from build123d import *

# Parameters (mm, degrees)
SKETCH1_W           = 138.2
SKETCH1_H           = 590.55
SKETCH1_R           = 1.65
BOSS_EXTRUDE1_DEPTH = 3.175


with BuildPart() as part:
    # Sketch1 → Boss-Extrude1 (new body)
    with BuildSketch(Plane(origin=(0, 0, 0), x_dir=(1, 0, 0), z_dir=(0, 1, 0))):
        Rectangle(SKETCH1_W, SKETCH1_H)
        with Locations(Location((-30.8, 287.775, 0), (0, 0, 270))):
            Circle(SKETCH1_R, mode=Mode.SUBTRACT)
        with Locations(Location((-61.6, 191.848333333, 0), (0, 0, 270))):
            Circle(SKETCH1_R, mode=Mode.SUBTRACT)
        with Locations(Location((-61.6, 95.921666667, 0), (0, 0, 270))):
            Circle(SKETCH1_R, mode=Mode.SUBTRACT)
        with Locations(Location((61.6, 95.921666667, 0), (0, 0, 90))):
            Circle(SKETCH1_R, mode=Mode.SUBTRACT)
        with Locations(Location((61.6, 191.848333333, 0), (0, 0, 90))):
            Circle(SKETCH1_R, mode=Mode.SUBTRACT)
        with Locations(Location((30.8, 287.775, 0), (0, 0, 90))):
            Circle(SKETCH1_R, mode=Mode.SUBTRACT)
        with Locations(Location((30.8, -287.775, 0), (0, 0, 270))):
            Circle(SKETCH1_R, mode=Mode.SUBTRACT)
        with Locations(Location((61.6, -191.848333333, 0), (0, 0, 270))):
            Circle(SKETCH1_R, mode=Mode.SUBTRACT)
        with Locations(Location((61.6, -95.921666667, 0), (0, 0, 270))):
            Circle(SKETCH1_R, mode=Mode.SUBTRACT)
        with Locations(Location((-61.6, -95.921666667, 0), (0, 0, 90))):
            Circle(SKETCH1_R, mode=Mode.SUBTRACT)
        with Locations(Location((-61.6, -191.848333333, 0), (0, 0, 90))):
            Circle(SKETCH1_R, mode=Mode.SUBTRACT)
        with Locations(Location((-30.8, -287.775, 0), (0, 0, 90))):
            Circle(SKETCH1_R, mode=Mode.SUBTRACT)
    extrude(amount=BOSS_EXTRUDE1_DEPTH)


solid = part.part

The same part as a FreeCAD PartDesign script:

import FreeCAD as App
import Part
import Sketcher

V = App.Vector
Q = App.Units.Quantity

doc = App.newDocument("Part")
body = doc.addObject("PartDesign::Body", "Body")

sketch1 = doc.addObject("Sketcher::SketchObject", "Sketch")
body.addObject(sketch1)
sketch1.AttachmentSupport = (doc.XZ_Plane, [""])
sketch1.MapMode = "FlatFace"
sketch1.addGeometry(Part.LineSegment(V(-69.1, -295.3, 0), V(-69.1, 295.3, 0)), False)
sketch1.addGeometry(Part.LineSegment(V(-69.1, 295.3, 0), V(69.1, 295.3, 0)), False)
sketch1.addGeometry(Part.LineSegment(V(69.1, 295.3, 0), V(69.1, -295.3, 0)), False)
sketch1.addGeometry(Part.LineSegment(V(69.1, -295.3, 0), V(-69.1, -295.3, 0)), False)
sketch1.addGeometry(Part.Circle(V(-61.6, 191.8, 0), V(0, 0, 1), 1.6), False)
sketch1.addGeometry(Part.Circle(V(-30.8, 287.8, 0), V(0, 0, 1), 1.6), False)
sketch1.addGeometry(Part.Circle(V(-61.6, 95.9, 0), V(0, 0, 1), 1.6), False)
sketch1.addGeometry(Part.Circle(V(30.8, 287.8, 0), V(0, 0, 1), 1.6), False)
sketch1.addGeometry(Part.Circle(V(61.6, 191.8, 0), V(0, 0, 1), 1.6), False)
sketch1.addGeometry(Part.Circle(V(61.6, 95.9, 0), V(0, 0, 1), 1.6), False)
sketch1.addGeometry(Part.Circle(V(-61.6, -95.9, 0), V(0, 0, 1), 1.6), False)
sketch1.addGeometry(Part.Circle(V(-61.6, -191.8, 0), V(0, 0, 1), 1.6), False)
sketch1.addGeometry(Part.Circle(V(-30.8, -287.8, 0), V(0, 0, 1), 1.6), False)
sketch1.addGeometry(Part.Circle(V(61.6, -95.9, 0), V(0, 0, 1), 1.6), False)
sketch1.addGeometry(Part.Circle(V(30.8, -287.8, 0), V(0, 0, 1), 1.6), False)
sketch1.addGeometry(Part.Circle(V(61.6, -191.8, 0), V(0, 0, 1), 1.6), False)
sketch1.addConstraint(Sketcher.Constraint("Coincident", 0, 2, 1, 1))
sketch1.addConstraint(Sketcher.Constraint("Coincident", 1, 2, 2, 1))
sketch1.addConstraint(Sketcher.Constraint("Coincident", 2, 2, 3, 1))
sketch1.addConstraint(Sketcher.Constraint("Coincident", 3, 2, 0, 1))
sketch1.addConstraint(Sketcher.Constraint("Vertical", 0))
sketch1.addConstraint(Sketcher.Constraint("Horizontal", 1))
sketch1.addConstraint(Sketcher.Constraint("Vertical", 2))
sketch1.addConstraint(Sketcher.Constraint("Horizontal", 3))
sketch1.addConstraint(Sketcher.Constraint("Equal", 4, 5))
sketch1.addConstraint(Sketcher.Constraint("Equal", 5, 6))
sketch1.addConstraint(Sketcher.Constraint("Equal", 6, 7))
sketch1.addConstraint(Sketcher.Constraint("Equal", 7, 8))
sketch1.addConstraint(Sketcher.Constraint("Equal", 8, 9))
sketch1.addConstraint(Sketcher.Constraint("Equal", 9, 10))
sketch1.addConstraint(Sketcher.Constraint("Equal", 10, 11))
sketch1.addConstraint(Sketcher.Constraint("Equal", 11, 12))
sketch1.addConstraint(Sketcher.Constraint("Equal", 12, 13))
sketch1.addConstraint(Sketcher.Constraint("Equal", 13, 14))
sketch1.addConstraint(Sketcher.Constraint("Equal", 14, 15))
sketch1.addConstraint(Sketcher.Constraint("Symmetric", 9, 3, 10, 3, -1, 1))
sketch1.addConstraint(Sketcher.Constraint("Symmetric", 8, 3, 11, 3, -1, 1))
sketch1.addConstraint(Sketcher.Constraint("Symmetric", 7, 3, 12, 3, -1, 1))
sketch1.addConstraint(Sketcher.Constraint("Symmetric", 6, 3, 13, 3, -1, 1))
sketch1.addConstraint(Sketcher.Constraint("Symmetric", 5, 3, 14, 3, -1, 1))
sketch1.addConstraint(Sketcher.Constraint("Symmetric", 4, 3, 15, 3, -1, 1))
sketch1.addConstraint(Sketcher.Constraint("Symmetric", 0, 2, 2, 2, -1, 1))
sketch1.addConstraint(Sketcher.Constraint("Symmetric", 5, 3, 7, 3, -2))
sketch1.addConstraint(Sketcher.Constraint("Symmetric", 4, 3, 8, 3, -2))
sketch1.addConstraint(Sketcher.Constraint("Symmetric", 6, 3, 9, 3, -2))
sketch1.addConstraint(Sketcher.Constraint("Vertical", 4, 3, 6, 3))
sketch1.addConstraint(Sketcher.Constraint("Diameter", 4, Q("3.3 mm")))
sketch1.addConstraint(Sketcher.Constraint("DistanceX", 1, 1, 1, 2, Q("138.2 mm")))
sketch1.addConstraint(Sketcher.Constraint("DistanceY", 0, 1, 0, 2, Q("590.55 mm")))
sketch1.addConstraint(Sketcher.Constraint("DistanceX", 4, 3, -1, 1, Q("61.6 mm")))
sketch1.addConstraint(Sketcher.Constraint("DistanceX", 5, 3, -1, 1, Q("30.8 mm")))
sketch1.addConstraint(Sketcher.Constraint("DistanceY", 5, 3, 0, 2, Q("7.5 mm")))
sketch1.addConstraint(Sketcher.Constraint("DistanceY", 10, 3, 4, 3, Q("287.77 mm")))
sketch1.addConstraint(Sketcher.Constraint("DistanceY", -1, 1, 4, 3, Q("191.848333 mm")))
pad1 = doc.addObject("PartDesign::Pad", "Pad")
body.addObject(pad1)
pad1.Profile = sketch1
pad1.Length = 3.175
pad1.Reversed = True

doc.recompute()
